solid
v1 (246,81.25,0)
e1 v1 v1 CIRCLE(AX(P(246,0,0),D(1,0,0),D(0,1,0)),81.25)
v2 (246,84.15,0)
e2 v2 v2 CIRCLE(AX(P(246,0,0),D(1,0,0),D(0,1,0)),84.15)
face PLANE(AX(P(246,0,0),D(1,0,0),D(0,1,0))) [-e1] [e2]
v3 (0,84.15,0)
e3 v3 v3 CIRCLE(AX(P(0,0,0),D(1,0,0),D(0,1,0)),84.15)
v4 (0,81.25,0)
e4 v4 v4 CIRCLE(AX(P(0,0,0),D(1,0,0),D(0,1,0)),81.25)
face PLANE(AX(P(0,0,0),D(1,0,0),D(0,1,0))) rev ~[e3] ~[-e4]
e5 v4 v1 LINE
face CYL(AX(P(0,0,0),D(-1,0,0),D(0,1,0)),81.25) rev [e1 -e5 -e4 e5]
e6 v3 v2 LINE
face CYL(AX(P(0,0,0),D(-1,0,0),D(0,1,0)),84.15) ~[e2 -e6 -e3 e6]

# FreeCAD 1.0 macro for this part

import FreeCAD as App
import Part
import Sketcher
from FreeCAD import Vector

doc = App.newDocument("Part")
body = doc.addObject("PartDesign::Body", "Body")

# Sketch on YZ plane
sketch1 = doc.addObject("Sketcher::SketchObject", "Sketch")
body.addObject(sketch1)
sketch1.AttachmentSupport = (doc.YZ_Plane, [""])
sketch1.MapMode = "FlatFace"
sketch1.addGeometry(Part.Circle(Vector(0, 0, 0), Vector(0, 0, 1), 84), False)
sketch1.addGeometry(Part.Circle(Vector(0, 0, 0), Vector(0, 0, 1), 81), False)
sketch1.addConstraint(Sketcher.Constraint("Coincident", 0, 3, -1, 1))
sketch1.addConstraint(Sketcher.Constraint("Coincident", 1, 3, -1, 1))
sketch1.addConstraint(Sketcher.Constraint("Diameter", 0, 168.3))
sketch1.addConstraint(Sketcher.Constraint("Diameter", 1, 162.5))
pad1 = doc.addObject("PartDesign::Pad", "Pad")
body.addObject(pad1)
pad1.Profile = sketch1
pad1.Length = 246

doc.recompute()
